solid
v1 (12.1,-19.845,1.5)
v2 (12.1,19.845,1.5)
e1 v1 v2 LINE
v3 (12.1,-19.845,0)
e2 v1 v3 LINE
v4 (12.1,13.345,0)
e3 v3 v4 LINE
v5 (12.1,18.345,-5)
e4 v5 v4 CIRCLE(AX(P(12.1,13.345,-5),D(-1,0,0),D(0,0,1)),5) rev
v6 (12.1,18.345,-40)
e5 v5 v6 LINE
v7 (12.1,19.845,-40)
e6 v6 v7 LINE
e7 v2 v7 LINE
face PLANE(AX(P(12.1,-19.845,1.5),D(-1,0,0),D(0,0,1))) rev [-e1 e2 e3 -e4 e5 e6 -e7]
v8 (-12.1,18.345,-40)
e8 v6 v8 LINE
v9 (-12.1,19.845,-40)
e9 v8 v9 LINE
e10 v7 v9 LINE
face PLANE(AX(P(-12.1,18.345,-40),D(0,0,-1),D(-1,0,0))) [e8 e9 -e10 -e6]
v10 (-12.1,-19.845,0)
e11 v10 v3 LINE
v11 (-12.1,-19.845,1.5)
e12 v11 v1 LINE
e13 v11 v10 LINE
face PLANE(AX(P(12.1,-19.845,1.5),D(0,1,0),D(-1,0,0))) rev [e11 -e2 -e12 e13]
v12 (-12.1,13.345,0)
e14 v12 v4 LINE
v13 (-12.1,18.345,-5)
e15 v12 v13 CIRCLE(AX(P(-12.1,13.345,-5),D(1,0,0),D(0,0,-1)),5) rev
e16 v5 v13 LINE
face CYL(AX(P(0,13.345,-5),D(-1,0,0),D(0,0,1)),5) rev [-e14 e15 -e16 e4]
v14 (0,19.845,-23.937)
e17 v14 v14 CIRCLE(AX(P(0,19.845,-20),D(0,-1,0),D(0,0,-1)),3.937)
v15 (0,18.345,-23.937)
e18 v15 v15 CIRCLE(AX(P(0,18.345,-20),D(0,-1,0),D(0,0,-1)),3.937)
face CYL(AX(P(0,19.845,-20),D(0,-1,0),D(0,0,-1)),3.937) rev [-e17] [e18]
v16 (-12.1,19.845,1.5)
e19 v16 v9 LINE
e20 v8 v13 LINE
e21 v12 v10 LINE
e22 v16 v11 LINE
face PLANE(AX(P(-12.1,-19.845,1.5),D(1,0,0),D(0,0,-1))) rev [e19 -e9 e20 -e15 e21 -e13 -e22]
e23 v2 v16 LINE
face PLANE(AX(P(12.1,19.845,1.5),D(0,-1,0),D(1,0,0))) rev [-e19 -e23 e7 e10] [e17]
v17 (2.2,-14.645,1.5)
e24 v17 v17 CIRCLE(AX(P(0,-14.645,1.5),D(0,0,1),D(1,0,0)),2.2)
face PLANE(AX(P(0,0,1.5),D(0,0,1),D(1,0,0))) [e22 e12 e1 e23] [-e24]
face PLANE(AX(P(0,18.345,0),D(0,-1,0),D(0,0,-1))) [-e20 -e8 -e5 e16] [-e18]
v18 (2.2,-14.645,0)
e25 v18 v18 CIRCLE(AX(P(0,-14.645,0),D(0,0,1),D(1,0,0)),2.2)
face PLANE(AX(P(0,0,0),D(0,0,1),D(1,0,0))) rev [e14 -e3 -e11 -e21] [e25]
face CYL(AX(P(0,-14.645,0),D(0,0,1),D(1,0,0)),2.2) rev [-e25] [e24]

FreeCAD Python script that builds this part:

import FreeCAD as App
import Part
import Sketcher
from FreeCAD import Vector


def edges_at(feature, points):
    """Names of the edges that pass closest to the given points."""
    edges = feature.Shape.Edges
    near = lambda p: min(range(len(edges)), key=lambda i: edges[i].distToShape(Part.Vertex(*p))[0])
    return sorted({f"Edge{near(p) + 1}" for p in points})


def add_polygon(sketch, points):
    """Adds a closed chain of lines whose ends are joined by coincident constraints."""
    first, n = sketch.GeometryCount, len(points)
    for a, b in zip(points, points[1:] + points[:1]):
        sketch.addGeometry(Part.LineSegment(App.Vector(*a, 0), App.Vector(*b, 0)), False)
    for i in range(n):
        sketch.addConstraint(Sketcher.Constraint("Coincident", first + i, 2, first + (i + 1) % n, 1))

doc = App.newDocument("Part")
body = doc.addObject("PartDesign::Body", "Body")

# Sketch on XY plane
sketch1 = body.newObject("Sketcher::SketchObject", "Sketch")
sketch1.AttachmentSupport = (doc.getObject("XY_Plane"), [""])
sketch1.MapMode = "FlatFace"
add_polygon(sketch1, [(-12.1, 19.845), (-12.1, -19.845), (12.1, -19.845), (12.1, 19.845)])  # lines 0-3
sketch1.addConstraint(Sketcher.Constraint("Vertical", 0))
sketch1.addConstraint(Sketcher.Constraint("Horizontal", 1))
sketch1.addConstraint(Sketcher.Constraint("Vertical", 2))
sketch1.addConstraint(Sketcher.Constraint("Horizontal", 3))
sketch1.addConstraint(Sketcher.Constraint("Symmetric", 0, 2, 2, 2, -1, 1))
sketch1.addConstraint(Sketcher.Constraint("DistanceX", 1, 1, 1, 2, 24.2))
sketch1.addConstraint(Sketcher.Constraint("DistanceY", 0, 2, 0, 1, 39.69))
pad1 = body.newObject("PartDesign::Pad", "Pad")
pad1.Profile = sketch1
pad1.Length = 1.5

# Sketch on XY plane
sketch2 = body.newObject("Sketcher::SketchObject", "Sketch001")
sketch2.AttachmentSupport = (doc.getObject("XY_Plane"), [""])
sketch2.MapMode = "FlatFace"
sketch2.AttachmentOffset = App.Placement(Vector(0, 0, 1.5), App.Rotation())
sketch2.addGeometry(Part.Circle(Vector(0, -14.645, 0), Vector(0, 0, 1), 2.2), False)
sketch2.addConstraint(Sketcher.Constraint("PointOnObject", 0, 3, -2))
sketch2.addConstraint(Sketcher.Constraint("Diameter", 0, 4.4))
sketch2.addConstraint(Sketcher.Constraint("DistanceY", 0, 3, -1, 1, 14.645))
pocket1 = body.newObject("PartDesign::Pocket", "Pocket")
pocket1.Profile = sketch2
pocket1.Type = "ThroughAll"

# Sketch on XZ plane
sketch3 = body.newObject("Sketcher::SketchObject", "Sketch002")
sketch3.AttachmentSupport = (doc.getObject("XZ_Plane"), [""])
sketch3.MapMode = "FlatFace"
sketch3.AttachmentOffset = App.Placement(Vector(0, 0, -19.845), App.Rotation())
add_polygon(sketch3, [(-12.1, -40), (-12.1, 0), (12.1, 0), (12.1, -40)])  # lines 0-3
sketch3.addConstraint(Sketcher.Constraint("Vertical", 0))
sketch3.addConstraint(Sketcher.Constraint("Horizontal", 1))
sketch3.addConstraint(Sketcher.Constraint("Vertical", 2))
sketch3.addConstraint(Sketcher.Constraint("Horizontal", 3))
sketch3.addConstraint(Sketcher.Constraint("Symmetric", 0, 2, 1, 2, -1, 1))
sketch3.addConstraint(Sketcher.Constraint("DistanceY", 0, 1, 0, 2, 40.0))
sketch3.addConstraint(Sketcher.Constraint("DistanceX", 1, 1, 1, 2, 24.2))
pad2 = body.newObject("PartDesign::Pad", "Pad001")
pad2.Profile = sketch3
pad2.Length = 1.5

# Sketch on XZ plane
sketch4 = body.newObject("Sketcher::SketchObject", "Sketch003")
sketch4.AttachmentSupport = (doc.getObject("XZ_Plane"), [""])
sketch4.MapMode = "FlatFace"
sketch4.AttachmentOffset = App.Placement(Vector(0, 0, -18.345), App.Rotation())
sketch4.addGeometry(Part.Circle(Vector(0, -20, 0), Vector(0, 0, 1), 3.937), False)
sketch4.addConstraint(Sketcher.Constraint("PointOnObject", 0, 3, -2))
sketch4.addConstraint(Sketcher.Constraint("Diameter", 0, 7.874))
sketch4.addConstraint(Sketcher.Constraint("DistanceY", 0, 3, -1, 1, 20.0))
pocket2 = body.newObject("PartDesign::Pocket", "Pocket001")
pocket2.Profile = sketch4
pocket2.Type = "ThroughAll"
doc.recompute()

fillet = body.newObject("PartDesign::Fillet", "Fillet")
fillet.Base = (pocket2, edges_at(pocket2, [(0, 18.345, 0)]))
fillet.Radius = 5

doc.recompute()
